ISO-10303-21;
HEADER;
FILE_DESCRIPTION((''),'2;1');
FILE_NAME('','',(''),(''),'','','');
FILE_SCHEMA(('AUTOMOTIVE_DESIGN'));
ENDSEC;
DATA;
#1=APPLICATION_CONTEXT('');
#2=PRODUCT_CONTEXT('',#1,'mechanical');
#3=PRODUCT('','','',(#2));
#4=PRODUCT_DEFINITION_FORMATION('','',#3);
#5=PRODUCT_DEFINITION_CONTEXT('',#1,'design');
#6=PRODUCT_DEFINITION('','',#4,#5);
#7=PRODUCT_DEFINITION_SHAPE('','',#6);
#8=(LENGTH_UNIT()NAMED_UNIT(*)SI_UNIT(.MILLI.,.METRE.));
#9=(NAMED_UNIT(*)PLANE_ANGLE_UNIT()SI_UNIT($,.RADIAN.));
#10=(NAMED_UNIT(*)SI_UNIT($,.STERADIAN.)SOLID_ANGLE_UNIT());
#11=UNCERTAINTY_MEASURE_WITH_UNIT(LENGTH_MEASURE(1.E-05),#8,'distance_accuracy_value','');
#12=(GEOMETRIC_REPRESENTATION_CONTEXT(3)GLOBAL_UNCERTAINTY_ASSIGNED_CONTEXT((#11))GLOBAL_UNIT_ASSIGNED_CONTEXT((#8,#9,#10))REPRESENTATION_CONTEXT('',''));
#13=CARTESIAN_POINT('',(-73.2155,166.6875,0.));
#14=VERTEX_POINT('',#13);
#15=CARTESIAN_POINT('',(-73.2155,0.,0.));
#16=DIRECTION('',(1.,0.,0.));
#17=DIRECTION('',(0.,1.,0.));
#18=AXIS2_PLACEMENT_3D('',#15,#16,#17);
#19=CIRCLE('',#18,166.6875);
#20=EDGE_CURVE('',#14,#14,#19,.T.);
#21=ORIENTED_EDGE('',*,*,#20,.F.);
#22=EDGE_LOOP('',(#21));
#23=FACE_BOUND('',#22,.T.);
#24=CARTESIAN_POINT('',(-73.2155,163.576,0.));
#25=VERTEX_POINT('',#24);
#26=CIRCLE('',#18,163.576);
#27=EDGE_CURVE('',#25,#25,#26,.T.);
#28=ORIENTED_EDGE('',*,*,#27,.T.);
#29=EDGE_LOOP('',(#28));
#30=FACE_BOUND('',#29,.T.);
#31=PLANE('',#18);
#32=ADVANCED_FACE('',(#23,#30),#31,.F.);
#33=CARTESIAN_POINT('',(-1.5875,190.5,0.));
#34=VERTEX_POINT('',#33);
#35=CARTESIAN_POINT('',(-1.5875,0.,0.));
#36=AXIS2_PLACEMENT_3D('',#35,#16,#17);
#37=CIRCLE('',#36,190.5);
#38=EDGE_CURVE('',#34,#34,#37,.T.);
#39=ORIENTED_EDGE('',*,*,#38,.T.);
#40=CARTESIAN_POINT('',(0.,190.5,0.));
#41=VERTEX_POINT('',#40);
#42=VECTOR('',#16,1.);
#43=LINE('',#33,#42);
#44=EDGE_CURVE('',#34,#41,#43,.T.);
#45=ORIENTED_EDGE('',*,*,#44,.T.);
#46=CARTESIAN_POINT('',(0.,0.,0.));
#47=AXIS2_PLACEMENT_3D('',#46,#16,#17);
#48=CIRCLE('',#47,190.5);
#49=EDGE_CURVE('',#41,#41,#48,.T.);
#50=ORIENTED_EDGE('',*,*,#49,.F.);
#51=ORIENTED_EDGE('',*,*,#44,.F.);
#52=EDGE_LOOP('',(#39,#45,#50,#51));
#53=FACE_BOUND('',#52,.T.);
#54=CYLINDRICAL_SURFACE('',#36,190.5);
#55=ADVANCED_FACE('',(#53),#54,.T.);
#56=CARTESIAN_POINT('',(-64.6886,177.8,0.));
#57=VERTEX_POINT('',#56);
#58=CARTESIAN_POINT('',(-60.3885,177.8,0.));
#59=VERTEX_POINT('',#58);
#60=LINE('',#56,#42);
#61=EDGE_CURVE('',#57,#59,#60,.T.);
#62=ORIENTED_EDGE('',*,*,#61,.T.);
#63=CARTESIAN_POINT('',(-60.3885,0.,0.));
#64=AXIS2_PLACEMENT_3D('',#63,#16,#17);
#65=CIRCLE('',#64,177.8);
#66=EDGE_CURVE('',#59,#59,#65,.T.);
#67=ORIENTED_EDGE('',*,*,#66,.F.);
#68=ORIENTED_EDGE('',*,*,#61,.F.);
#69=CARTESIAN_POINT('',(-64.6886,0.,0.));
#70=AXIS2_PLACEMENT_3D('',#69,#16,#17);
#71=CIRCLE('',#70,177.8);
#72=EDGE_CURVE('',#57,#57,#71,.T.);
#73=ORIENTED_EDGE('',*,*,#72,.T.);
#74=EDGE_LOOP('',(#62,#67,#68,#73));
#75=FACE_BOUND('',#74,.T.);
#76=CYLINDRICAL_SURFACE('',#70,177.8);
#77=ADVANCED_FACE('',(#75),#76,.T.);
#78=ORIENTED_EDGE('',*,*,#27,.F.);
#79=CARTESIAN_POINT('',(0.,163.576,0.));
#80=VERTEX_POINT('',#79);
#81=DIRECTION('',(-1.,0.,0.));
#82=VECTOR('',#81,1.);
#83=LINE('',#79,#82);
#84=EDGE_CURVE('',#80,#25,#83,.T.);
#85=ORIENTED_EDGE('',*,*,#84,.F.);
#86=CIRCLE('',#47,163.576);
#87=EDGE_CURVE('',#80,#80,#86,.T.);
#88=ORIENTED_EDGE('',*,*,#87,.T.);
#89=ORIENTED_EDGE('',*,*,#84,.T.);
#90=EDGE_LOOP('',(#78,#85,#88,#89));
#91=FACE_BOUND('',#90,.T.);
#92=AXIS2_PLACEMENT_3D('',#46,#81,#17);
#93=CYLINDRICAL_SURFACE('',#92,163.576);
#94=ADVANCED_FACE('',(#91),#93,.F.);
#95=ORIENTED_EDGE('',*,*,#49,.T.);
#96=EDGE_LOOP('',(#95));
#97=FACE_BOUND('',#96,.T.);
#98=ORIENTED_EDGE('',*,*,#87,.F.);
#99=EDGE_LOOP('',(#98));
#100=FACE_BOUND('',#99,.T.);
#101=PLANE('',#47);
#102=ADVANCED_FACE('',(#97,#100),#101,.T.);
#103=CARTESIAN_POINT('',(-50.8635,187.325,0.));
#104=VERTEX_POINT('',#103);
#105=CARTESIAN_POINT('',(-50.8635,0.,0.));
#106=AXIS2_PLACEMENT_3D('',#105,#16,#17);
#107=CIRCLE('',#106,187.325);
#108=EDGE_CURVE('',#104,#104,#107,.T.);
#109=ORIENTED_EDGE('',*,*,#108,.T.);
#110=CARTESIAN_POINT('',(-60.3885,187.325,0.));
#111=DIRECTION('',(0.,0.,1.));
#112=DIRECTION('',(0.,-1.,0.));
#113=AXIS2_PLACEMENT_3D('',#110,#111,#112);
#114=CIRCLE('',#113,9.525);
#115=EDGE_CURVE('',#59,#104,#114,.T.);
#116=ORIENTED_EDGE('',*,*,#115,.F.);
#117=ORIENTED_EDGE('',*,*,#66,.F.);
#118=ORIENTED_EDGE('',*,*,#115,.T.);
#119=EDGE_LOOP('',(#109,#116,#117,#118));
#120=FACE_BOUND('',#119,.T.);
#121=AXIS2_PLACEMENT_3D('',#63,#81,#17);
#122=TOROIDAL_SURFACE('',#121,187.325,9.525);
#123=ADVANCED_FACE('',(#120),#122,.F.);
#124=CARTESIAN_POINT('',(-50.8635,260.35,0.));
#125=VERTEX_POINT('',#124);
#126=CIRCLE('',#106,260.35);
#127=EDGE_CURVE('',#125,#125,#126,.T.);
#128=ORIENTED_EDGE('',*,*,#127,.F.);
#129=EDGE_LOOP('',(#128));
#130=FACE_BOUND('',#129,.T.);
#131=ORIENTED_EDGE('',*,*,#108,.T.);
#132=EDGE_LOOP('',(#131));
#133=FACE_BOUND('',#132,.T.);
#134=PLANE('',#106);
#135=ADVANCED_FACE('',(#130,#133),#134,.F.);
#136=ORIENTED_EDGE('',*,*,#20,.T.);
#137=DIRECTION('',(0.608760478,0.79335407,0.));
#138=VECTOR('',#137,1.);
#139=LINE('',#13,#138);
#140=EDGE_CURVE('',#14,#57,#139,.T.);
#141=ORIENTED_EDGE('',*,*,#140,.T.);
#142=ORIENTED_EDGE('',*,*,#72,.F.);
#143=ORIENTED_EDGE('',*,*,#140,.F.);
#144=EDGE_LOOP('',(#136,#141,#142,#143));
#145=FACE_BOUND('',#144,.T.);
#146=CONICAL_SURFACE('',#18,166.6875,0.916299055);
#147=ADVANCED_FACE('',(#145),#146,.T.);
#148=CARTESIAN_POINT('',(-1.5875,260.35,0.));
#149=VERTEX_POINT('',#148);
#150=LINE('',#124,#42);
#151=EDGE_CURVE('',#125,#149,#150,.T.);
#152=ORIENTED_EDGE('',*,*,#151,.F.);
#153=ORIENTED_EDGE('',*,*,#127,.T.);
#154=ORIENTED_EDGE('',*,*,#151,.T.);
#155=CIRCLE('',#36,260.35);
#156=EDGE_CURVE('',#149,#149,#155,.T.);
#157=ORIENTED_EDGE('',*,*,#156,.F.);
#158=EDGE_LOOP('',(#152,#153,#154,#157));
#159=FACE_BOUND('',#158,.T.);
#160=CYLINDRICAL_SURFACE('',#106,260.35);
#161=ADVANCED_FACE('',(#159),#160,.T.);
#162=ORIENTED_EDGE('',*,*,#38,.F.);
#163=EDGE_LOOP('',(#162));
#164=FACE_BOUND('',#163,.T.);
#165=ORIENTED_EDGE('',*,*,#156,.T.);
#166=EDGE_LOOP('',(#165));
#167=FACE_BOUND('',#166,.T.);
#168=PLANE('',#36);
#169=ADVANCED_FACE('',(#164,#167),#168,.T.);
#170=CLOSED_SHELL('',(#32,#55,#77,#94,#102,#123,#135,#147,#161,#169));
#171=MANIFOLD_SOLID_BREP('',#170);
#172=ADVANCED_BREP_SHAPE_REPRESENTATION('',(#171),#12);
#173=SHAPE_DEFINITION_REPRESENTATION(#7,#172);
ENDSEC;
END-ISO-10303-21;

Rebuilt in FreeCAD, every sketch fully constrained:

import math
import FreeCAD as App
import Part
import Sketcher
from FreeCAD import Vector
Q = App.Units.Quantity


def add_polygon(sketch, points):
    """Adds a closed chain of lines whose ends are joined by coincident constraints."""
    first, n = sketch.GeometryCount, len(points)
    for a, b in zip(points, points[1:] + points[:1]):
        sketch.addGeometry(Part.LineSegment(App.Vector(*a, 0), App.Vector(*b, 0)), False)
    for i in range(n):
        sketch.addConstraint(Sketcher.Constraint("Coincident", first + i, 2, first + (i + 1) % n, 1))

doc = App.newDocument("Part")
params = doc.addObject("Spreadsheet::Sheet", "Params")
for row, (alias, value) in enumerate([
    ("sketch1_width", "1.94 in"),
    ("sketch1_width2", "0.0625 in"),
    ("revolution_angle", "360 deg"),
    ("sketch2_radius", "0.375 in"),
    ("sketch2_width", "0.88 in"),
    ("sketch2_height", "0.8125 in"),
    ("groove_angle", "360 deg"),
], start=1):
    params.set(f"A{row}", alias)
    params.set(f"B{row}", "=" + value)
    params.setAlias(f"B{row}", alias)

body = doc.addObject("PartDesign::Body", "Body")

# Sketch on XY plane
sketch1 = body.newObject("Sketcher::SketchObject", "Sketch")
sketch1.AttachmentSupport = (doc.getObject("XY_Plane"), [""])
sketch1.MapMode = "FlatFace"
add_polygon(sketch1, [(-73.2155, 163.576), (0, 163.576), (0, 190.5), (-1.5875, 190.5), (-1.5875, 260.35), (-50.8635, 260.35), (-50.8635, 187.325), (-73.2155, 187.325)])  # lines 0-7
sketch1.addConstraint([
    Sketcher.Constraint("Horizontal", 0),
    Sketcher.Constraint("Vertical", 1),
    Sketcher.Constraint("Horizontal", 2),
    Sketcher.Constraint("Vertical", 3),
    Sketcher.Constraint("Horizontal", 4),
    Sketcher.Constraint("Vertical", 5),
    Sketcher.Constraint("Horizontal", 6),
    Sketcher.Constraint("Vertical", 7),
    Sketcher.Constraint("PointOnObject", 0, 2, -2),
    Sketcher.Constraint("DistanceX", 4, 2, 4, 1, Q("1.94 in")),
    Sketcher.Constraint("DistanceY", -1, 1, 1, 2, Q("7.5 in")),
    Sketcher.Constraint("DistanceX", 2, 2, 2, 1, Q("0.0625 in")),
    Sketcher.Constraint("DistanceY", -1, 1, 0, 2, Q("6.44 in")),
    Sketcher.Constraint("DistanceY", -1, 1, 3, 2, Q("10.25 in")),
    Sketcher.Constraint("DistanceX", 6, 2, 2, 2, Q("2.82 in")),
    Sketcher.Constraint("DistanceY", -1, 1, 5, 2, Q("7.375 in")),
])
sketch1.setExpression("Constraints[17]", "Params.sketch1_width")
sketch1.setExpression("Constraints[19]", "Params.sketch1_width2")
revolution = body.newObject("PartDesign::Revolution", "Revolution")
revolution.Profile = sketch1
revolution.ReferenceAxis = (sketch1, ["H_Axis"])
revolution.setExpression("Angle", "Params.revolution_angle")

# Sketch on XY plane
sketch2 = body.newObject("Sketcher::SketchObject", "Sketch001")
sketch2.AttachmentSupport = (doc.getObject("XY_Plane"), [""])
sketch2.MapMode = "FlatFace"
sketch2.addGeometry([
    Part.ArcOfCircle(Part.Circle(Vector(-60.3885, 187.325, 0), Vector(0, 0, 1), 9.525), math.radians(-90), math.radians(0)),  # 0
    Part.LineSegment(Vector(-50.8635, 187.325, 0), Vector(-73.2155, 187.325, 0)),  # 1
    Part.LineSegment(Vector(-73.2155, 187.325, 0), Vector(-73.2155, 166.6875, 0)),  # 2
    Part.LineSegment(Vector(-73.2155, 166.6875, 0), Vector(-64.6886, 177.8, 0)),  # 3
    Part.LineSegment(Vector(-64.6886, 177.8, 0), Vector(-60.3885, 177.8, 0)),  # 4
], False)
sketch2.addConstraint([
    Sketcher.Constraint("Coincident", 0, 2, 1, 1),
    Sketcher.Constraint("Coincident", 1, 2, 2, 1),
    Sketcher.Constraint("Coincident", 2, 2, 3, 1),
    Sketcher.Constraint("Coincident", 3, 2, 4, 1),
    Sketcher.Constraint("Tangent", 4, 2, 0, 1),
    Sketcher.Constraint("Horizontal", 1),
    Sketcher.Constraint("Vertical", 2),
    Sketcher.Constraint("Horizontal", 4),
    Sketcher.Constraint("DistanceY", -1, 1, 3, 2, Q("7 in")),
    Sketcher.Constraint("Radius", 0, Q("0.375 in")),
    Sketcher.Constraint("DistanceX", 1, 2, 1, 1, Q("0.88 in")),
    Sketcher.Constraint("Angle", 3, Q("52.5 deg")),
    Sketcher.Constraint("DistanceY", 2, 2, 2, 1, Q("0.8125 in")),
    Sketcher.Constraint("DistanceX", 4, 1, 4, 2, Q("0.1693 in")),
    Sketcher.Constraint("DistanceX", 0, 3, -1, 1, Q("2.3775 in")),
])
sketch2.setExpression("Constraints[9]", "Params.sketch2_radius")
sketch2.setExpression("Constraints[10]", "Params.sketch2_width")
sketch2.setExpression("Constraints[12]", "Params.sketch2_height")
groove = body.newObject("PartDesign::Groove", "Groove")
groove.Profile = sketch2
groove.ReferenceAxis = (sketch2, ["H_Axis"])
groove.setExpression("Angle", "Params.groove_angle")

doc.recompute()
